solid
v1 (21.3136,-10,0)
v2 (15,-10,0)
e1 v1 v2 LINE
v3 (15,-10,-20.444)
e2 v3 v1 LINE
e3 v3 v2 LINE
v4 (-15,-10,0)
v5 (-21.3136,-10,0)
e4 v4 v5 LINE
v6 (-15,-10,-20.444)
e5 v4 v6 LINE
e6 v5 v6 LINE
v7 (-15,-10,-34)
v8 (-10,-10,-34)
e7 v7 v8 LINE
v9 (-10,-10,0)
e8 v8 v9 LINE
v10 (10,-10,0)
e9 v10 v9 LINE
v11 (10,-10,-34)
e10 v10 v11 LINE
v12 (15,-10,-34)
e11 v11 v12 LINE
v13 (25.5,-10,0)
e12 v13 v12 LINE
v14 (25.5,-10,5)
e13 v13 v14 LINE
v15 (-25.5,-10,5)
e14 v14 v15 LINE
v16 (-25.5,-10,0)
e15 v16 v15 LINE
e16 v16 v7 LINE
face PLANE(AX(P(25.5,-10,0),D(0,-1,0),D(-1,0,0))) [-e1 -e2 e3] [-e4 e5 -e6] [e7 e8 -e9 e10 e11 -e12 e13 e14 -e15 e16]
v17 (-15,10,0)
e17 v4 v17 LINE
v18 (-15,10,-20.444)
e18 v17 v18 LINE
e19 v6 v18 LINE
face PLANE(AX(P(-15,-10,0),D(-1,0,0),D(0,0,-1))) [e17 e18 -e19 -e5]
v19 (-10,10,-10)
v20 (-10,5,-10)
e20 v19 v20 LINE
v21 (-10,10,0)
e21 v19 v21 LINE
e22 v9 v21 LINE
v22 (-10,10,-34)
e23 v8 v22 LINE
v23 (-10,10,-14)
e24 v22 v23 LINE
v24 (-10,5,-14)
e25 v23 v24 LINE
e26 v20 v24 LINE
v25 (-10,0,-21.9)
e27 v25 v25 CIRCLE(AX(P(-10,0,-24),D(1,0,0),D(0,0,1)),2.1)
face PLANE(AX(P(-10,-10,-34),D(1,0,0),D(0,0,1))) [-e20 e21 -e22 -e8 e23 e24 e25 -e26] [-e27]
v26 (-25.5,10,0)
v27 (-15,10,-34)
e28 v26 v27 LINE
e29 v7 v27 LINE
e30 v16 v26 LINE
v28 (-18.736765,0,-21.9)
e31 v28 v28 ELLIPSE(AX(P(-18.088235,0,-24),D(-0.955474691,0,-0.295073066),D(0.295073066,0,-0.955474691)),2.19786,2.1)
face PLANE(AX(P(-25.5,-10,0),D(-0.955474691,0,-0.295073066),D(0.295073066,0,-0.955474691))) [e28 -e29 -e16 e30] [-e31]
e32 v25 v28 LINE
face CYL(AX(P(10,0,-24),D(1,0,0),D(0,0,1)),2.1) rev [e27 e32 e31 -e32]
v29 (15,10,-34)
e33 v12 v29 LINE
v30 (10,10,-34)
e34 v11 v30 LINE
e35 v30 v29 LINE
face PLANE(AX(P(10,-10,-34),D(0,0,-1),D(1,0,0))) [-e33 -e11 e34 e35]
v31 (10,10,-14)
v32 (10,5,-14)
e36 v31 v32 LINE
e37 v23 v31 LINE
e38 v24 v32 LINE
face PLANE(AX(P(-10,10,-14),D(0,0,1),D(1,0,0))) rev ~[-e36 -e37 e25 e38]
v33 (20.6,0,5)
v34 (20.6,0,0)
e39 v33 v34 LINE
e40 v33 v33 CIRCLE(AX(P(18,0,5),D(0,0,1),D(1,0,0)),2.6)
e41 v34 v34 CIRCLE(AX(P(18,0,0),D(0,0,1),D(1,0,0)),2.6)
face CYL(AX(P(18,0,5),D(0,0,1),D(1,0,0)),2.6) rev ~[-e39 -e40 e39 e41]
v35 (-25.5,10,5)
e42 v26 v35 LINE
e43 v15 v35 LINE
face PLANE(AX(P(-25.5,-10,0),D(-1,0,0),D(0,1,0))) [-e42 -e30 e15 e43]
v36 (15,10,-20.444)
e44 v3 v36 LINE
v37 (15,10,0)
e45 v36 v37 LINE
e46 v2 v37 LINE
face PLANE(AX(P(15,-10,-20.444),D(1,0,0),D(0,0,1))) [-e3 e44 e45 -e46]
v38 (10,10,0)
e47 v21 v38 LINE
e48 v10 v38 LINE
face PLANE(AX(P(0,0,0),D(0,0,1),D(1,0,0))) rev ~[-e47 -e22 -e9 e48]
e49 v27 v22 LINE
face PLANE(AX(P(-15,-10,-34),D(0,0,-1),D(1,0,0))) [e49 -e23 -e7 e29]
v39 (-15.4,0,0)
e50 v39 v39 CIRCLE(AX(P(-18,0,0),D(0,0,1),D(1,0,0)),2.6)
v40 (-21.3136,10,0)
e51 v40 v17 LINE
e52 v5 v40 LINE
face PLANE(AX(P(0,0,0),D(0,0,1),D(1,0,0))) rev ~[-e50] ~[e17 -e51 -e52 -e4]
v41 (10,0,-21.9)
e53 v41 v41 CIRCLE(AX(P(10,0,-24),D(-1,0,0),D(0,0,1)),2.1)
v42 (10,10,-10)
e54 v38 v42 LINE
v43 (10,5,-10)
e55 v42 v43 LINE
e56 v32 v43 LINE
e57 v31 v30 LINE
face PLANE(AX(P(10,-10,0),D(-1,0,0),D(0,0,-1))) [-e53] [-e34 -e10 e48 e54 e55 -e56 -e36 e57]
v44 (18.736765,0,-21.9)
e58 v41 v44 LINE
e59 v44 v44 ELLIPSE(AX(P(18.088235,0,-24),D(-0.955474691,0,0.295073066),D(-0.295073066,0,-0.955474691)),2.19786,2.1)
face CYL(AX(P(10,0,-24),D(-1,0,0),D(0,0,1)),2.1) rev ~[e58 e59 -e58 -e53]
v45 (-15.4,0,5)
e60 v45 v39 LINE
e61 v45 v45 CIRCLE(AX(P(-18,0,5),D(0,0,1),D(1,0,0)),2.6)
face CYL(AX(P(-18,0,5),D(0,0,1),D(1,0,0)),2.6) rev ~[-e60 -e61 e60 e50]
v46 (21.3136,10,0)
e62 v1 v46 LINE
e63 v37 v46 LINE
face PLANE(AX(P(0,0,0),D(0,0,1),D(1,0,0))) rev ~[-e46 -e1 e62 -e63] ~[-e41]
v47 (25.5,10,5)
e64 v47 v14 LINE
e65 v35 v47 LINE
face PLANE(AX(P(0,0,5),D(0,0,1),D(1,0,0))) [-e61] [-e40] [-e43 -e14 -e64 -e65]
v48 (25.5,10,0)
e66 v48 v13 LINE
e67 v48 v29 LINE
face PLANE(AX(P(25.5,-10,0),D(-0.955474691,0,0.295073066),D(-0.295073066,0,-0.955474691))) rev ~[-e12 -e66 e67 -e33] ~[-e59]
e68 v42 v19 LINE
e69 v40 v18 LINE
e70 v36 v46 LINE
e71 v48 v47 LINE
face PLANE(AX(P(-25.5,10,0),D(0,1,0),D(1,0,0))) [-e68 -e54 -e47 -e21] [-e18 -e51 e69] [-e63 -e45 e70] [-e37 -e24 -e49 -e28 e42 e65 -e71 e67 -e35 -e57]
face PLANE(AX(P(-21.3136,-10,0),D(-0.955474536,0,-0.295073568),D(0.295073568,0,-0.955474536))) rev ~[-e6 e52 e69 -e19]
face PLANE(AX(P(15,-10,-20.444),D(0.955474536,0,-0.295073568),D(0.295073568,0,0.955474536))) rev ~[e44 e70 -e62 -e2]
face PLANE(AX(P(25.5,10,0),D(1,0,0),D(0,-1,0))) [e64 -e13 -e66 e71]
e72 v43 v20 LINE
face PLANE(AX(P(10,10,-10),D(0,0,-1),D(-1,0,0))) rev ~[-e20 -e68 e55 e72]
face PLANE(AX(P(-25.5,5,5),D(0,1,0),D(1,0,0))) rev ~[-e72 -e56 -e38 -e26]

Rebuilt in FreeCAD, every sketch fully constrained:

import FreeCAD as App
import Part
import Sketcher

V = App.Vector


def add_polygon(sketch, points):
    """Adds a closed chain of lines whose ends are joined by coincident constraints."""
    first, n = sketch.GeometryCount, len(points)
    for a, b in zip(points, points[1:] + points[:1]):
        sketch.addGeometry(Part.LineSegment(App.Vector(*a, 0), App.Vector(*b, 0)), False)
    for i in range(n):
        sketch.addConstraint(Sketcher.Constraint("Coincident", first + i, 2, first + (i + 1) % n, 1))

doc = App.newDocument("Part")
body = doc.addObject("PartDesign::Body", "Body")

sketch1 = body.newObject("Sketcher::SketchObject", "Sketch")
sketch1.AttachmentSupport = (doc.getObject("XY_Plane"), [""])
sketch1.MapMode = "FlatFace"
add_polygon(sketch1, [(26, 10), (-26, 10), (-26, -10), (26, -10)])
sketch1.addConstraint(Sketcher.Constraint("Horizontal", 0))
sketch1.addConstraint(Sketcher.Constraint("Vertical", 1))
sketch1.addConstraint(Sketcher.Constraint("Horizontal", 2))
sketch1.addConstraint(Sketcher.Constraint("Vertical", 3))
sketch1.addConstraint(Sketcher.Constraint("Symmetric", 0, 2, 2, 2, -1, 1))
sketch1.addConstraint(Sketcher.Constraint("DistanceX", 0, 2, 0, 1, 51.0))
sketch1.addConstraint(Sketcher.Constraint("DistanceY", 1, 2, 1, 1, 20.0))
pad1 = body.newObject("PartDesign::Pad", "Pad")
pad1.Profile = sketch1
pad1.Length = 5

sketch2 = body.newObject("Sketcher::SketchObject", "Sketch001")
sketch2.AttachmentSupport = (doc.getObject("XZ_Plane"), [""])
sketch2.MapMode = "FlatFace"
sketch2.AttachmentOffset = App.Placement(V(0, 0, 10), App.Rotation())
add_polygon(sketch2, [(15, 0), (10, 0), (10, -34), (15, -34), (25.5, 0), (21.3, 0), (15, -20.4)])
add_polygon(sketch2, [(-21.3, 0), (-25.5, 0), (-15, -34), (-10, -34), (-10, 0), (-15, 0), (-15, -20.4)])
sketch2.addConstraint(Sketcher.Constraint("Horizontal", 0))
sketch2.addConstraint(Sketcher.Constraint("Vertical", 1))
sketch2.addConstraint(Sketcher.Constraint("Horizontal", 2))
sketch2.addConstraint(Sketcher.Constraint("Horizontal", 4))
sketch2.addConstraint(Sketcher.Constraint("Vertical", 6))
sketch2.addConstraint(Sketcher.Constraint("Horizontal", 7))
sketch2.addConstraint(Sketcher.Constraint("Horizontal", 9))
sketch2.addConstraint(Sketcher.Constraint("Vertical", 10))
sketch2.addConstraint(Sketcher.Constraint("Horizontal", 11))
sketch2.addConstraint(Sketcher.Constraint("Vertical", 12))
sketch2.addConstraint(Sketcher.Constraint("Symmetric", 3, 2, 7, 2, -1, 1))
sketch2.addConstraint(Sketcher.Constraint("Symmetric", 0, 2, 10, 2, -1, 1))
sketch2.addConstraint(Sketcher.Constraint("Symmetric", 2, 2, 8, 2, -2))
sketch2.addConstraint(Sketcher.Constraint("Symmetric", 6, 2, 11, 2, -2))
sketch2.addConstraint(Sketcher.Constraint("Symmetric", 4, 2, 13, 2, -2))
sketch2.addConstraint(Sketcher.Constraint("Parallel", 3, 5))
sketch2.addConstraint(Sketcher.Constraint("Parallel", 8, 13))
sketch2.addConstraint(Sketcher.Constraint("Vertical", 2, 2, 5, 2))
sketch2.addConstraint(Sketcher.Constraint("DistanceX", 0, 2, 0, 1, 5.0))
sketch2.addConstraint(Sketcher.Constraint("DistanceY", 1, 2, 1, 1, 34.0))
sketch2.addConstraint(Sketcher.Constraint("DistanceX", 9, 2, 1, 2, 20.0))
sketch2.addConstraint(Sketcher.Constraint("DistanceX", -1, 1, 3, 2, 25.5))
sketch2.addConstraint(Sketcher.Constraint("DistanceY", 6, 1, 6, 2, 20.444))
pad2 = body.newObject("PartDesign::Pad", "Pad001")
pad2.Profile = sketch2
pad2.Length = 20
pad2.Reversed = True

sketch3 = body.newObject("Sketcher::SketchObject", "Sketch002")
sketch3.AttachmentSupport = (doc.getObject("YZ_Plane"), [""])
sketch3.MapMode = "FlatFace"
sketch3.AttachmentOffset = App.Placement(V(0, 0, 10), App.Rotation())
sketch3.addGeometry(Part.Circle(V(0, -24, 0), V(0, 0, 1), 2.1), False)
sketch3.addConstraint(Sketcher.Constraint("PointOnObject", 0, 3, -2))
sketch3.addConstraint(Sketcher.Constraint("Diameter", 0, 4.2))
sketch3.addConstraint(Sketcher.Constraint("DistanceY", 0, 3, -1, 1, 24.0))
pocket1 = body.newObject("PartDesign::Pocket", "Pocket")
pocket1.Profile = sketch3
pocket1.Type = "ThroughAll"
pocket1.Midplane = True

sketch4 = body.newObject("Sketcher::SketchObject", "Sketch003")
sketch4.AttachmentSupport = (doc.getObject("XZ_Plane"), [""])
sketch4.MapMode = "FlatFace"
sketch4.AttachmentOffset = App.Placement(V(0, 0, -10), App.Rotation())
add_polygon(sketch4, [(-10, -10), (10, -10), (10, -14), (-10, -14)])
sketch4.addConstraint(Sketcher.Constraint("Horizontal", 0))
sketch4.addConstraint(Sketcher.Constraint("Vertical", 1))
sketch4.addConstraint(Sketcher.Constraint("Horizontal", 2))
sketch4.addConstraint(Sketcher.Constraint("Vertical", 3))
sketch4.addConstraint(Sketcher.Constraint("DistanceX", 0, 1, 0, 2, 20.0))
sketch4.addConstraint(Sketcher.Constraint("DistanceY", 1, 2, 1, 1, 4.0))
sketch4.addConstraint(Sketcher.Constraint("DistanceX", -1, 1, 0, 2, 10.0))
sketch4.addConstraint(Sketcher.Constraint("DistanceY", 0, 2, -1, 1, 10.0))
pad3 = body.newObject("PartDesign::Pad", "Pad002")
pad3.Profile = sketch4
pad3.Length = 5

sketch5 = body.newObject("Sketcher::SketchObject", "Sketch004")
sketch5.AttachmentSupport = (doc.getObject("XY_Plane"), [""])
sketch5.MapMode = "FlatFace"
sketch5.AttachmentOffset = App.Placement(V(0, 0, 5), App.Rotation())
sketch5.addGeometry(Part.Circle(V(18, 0, 0), V(0, 0, 1), 2.6), False)
sketch5.addGeometry(Part.Circle(V(-18, 0, 0), V(0, 0, 1), 2.6), False)
sketch5.addConstraint(Sketcher.Constraint("Equal", 0, 1))
sketch5.addConstraint(Sketcher.Constraint("Symmetric", 0, 3, 1, 3, -1, 1))
sketch5.addConstraint(Sketcher.Constraint("PointOnObject", 0, 3, -1))
sketch5.addConstraint(Sketcher.Constraint("Diameter", 0, 5.2))
sketch5.addConstraint(Sketcher.Constraint("DistanceX", -1, 1, 0, 3, 18.0))
pocket2 = body.newObject("PartDesign::Pocket", "Pocket001")
pocket2.Profile = sketch5
pocket2.Length = 5

doc.recompute()
